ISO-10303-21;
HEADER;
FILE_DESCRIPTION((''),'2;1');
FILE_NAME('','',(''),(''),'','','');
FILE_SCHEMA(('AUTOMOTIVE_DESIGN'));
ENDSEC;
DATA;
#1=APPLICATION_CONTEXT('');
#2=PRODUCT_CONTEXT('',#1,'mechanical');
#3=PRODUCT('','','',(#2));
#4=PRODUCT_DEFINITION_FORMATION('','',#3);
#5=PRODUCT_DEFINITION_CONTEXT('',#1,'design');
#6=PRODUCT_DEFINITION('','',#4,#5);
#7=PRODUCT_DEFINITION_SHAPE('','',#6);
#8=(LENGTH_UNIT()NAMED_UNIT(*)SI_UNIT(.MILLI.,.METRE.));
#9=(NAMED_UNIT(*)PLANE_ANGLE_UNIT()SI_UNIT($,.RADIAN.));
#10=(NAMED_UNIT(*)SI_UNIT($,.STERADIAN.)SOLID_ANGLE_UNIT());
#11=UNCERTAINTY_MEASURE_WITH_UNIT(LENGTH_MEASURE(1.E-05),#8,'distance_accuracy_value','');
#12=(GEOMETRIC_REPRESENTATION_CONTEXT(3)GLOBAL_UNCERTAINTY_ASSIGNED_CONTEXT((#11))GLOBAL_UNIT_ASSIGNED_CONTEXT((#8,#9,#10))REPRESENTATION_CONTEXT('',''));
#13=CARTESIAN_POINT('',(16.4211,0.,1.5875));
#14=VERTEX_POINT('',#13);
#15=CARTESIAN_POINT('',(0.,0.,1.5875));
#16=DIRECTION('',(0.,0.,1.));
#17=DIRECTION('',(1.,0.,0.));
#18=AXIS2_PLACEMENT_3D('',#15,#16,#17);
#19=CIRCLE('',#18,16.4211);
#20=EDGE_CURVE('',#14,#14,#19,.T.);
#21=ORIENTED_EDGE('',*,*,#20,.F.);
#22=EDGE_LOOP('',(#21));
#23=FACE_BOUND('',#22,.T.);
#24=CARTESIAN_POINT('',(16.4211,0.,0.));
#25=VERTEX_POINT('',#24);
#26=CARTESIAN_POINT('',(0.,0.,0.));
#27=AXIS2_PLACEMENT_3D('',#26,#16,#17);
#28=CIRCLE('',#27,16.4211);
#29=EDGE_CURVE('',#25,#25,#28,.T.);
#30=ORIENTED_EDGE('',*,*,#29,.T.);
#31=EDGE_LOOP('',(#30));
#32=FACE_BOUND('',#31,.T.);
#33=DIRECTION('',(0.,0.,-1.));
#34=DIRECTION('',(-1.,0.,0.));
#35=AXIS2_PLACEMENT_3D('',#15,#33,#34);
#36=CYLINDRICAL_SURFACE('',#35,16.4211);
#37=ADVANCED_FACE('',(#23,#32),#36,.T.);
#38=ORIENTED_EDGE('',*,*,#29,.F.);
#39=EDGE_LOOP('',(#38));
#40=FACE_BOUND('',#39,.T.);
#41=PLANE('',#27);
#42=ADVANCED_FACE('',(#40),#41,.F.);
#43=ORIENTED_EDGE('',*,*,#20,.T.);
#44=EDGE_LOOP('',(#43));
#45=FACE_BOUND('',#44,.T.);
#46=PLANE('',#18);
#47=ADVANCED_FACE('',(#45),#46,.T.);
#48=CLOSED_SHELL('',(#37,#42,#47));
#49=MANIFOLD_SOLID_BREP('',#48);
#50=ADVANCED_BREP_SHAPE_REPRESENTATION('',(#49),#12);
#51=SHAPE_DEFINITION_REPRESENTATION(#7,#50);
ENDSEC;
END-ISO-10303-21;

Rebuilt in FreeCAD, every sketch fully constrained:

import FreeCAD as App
import Part
import Sketcher
from FreeCAD import Vector
Q = App.Units.Quantity

doc = App.newDocument("Part")
params = doc.addObject("Spreadsheet::Sheet", "Params")
for row, (alias, value) in enumerate([
    ("sketch1_diameter", "1.293 in"),
    ("pad1_length", "0.0625 in"),
], start=1):
    params.set(f"A{row}", alias)
    params.set(f"B{row}", "=" + value)
    params.setAlias(f"B{row}", alias)

body = doc.addObject("PartDesign::Body", "Body")

# Sketch on XY plane
sketch1 = body.newObject("Sketcher::SketchObject", "Sketch")
sketch1.AttachmentSupport = (doc.getObject("XY_Plane"), [""])
sketch1.MapMode = "FlatFace"
sketch1.addGeometry(Part.Circle(Vector(0, 0, 0), Vector(0, 0, 1), 16), False)
sketch1.addConstraint([
    Sketcher.Constraint("Coincident", 0, 3, -1, 1),
    Sketcher.Constraint("Diameter", 0, Q("1.293 in")),
])
sketch1.setExpression("Constraints[1]", "Params.sketch1_diameter")
pad1 = body.newObject("PartDesign::Pad", "Pad")
pad1.Profile = sketch1
pad1.setExpression("Length", "Params.pad1_length")

doc.recompute()
